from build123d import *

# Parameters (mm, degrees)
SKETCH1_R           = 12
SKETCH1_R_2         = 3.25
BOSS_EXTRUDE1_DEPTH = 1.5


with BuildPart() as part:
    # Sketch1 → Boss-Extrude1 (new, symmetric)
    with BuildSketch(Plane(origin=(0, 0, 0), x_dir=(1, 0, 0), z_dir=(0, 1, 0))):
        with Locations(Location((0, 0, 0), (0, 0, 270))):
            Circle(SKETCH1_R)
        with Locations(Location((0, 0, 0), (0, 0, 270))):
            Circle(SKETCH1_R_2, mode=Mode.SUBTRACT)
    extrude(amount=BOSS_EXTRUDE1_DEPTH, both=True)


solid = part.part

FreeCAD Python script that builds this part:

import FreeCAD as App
import Part
import Sketcher

doc = App.newDocument("Part")
body = doc.addObject("PartDesign::Body", "Body")

sketch1 = doc.addObject("Sketcher::SketchObject", "Sketch")
body.addObject(sketch1)
sketch1.AttachmentSupport = (doc.XZ_Plane, [""])
sketch1.MapMode = "FlatFace"
sketch1.addGeometry(Part.Circle(App.Vector(0, 0, 0), App.Vector(0, 0, 1), 12), False)
sketch1.addGeometry(Part.Circle(App.Vector(0, 0, 0), App.Vector(0, 0, 1), 3.25), False)
sketch1.addConstraint(Sketcher.Constraint("Coincident", 0, 3, -1, 1))
sketch1.addConstraint(Sketcher.Constraint("Coincident", 1, 3, -1, 1))
sketch1.addConstraint(Sketcher.Constraint("Diameter", 0, 24.0))
sketch1.addConstraint(Sketcher.Constraint("Diameter", 1, 6.5))
pad1 = doc.addObject("PartDesign::Pad", "Pad")
body.addObject(pad1)
pad1.Profile = sketch1
pad1.Length = 3
pad1.Midplane = True

doc.recompute()
